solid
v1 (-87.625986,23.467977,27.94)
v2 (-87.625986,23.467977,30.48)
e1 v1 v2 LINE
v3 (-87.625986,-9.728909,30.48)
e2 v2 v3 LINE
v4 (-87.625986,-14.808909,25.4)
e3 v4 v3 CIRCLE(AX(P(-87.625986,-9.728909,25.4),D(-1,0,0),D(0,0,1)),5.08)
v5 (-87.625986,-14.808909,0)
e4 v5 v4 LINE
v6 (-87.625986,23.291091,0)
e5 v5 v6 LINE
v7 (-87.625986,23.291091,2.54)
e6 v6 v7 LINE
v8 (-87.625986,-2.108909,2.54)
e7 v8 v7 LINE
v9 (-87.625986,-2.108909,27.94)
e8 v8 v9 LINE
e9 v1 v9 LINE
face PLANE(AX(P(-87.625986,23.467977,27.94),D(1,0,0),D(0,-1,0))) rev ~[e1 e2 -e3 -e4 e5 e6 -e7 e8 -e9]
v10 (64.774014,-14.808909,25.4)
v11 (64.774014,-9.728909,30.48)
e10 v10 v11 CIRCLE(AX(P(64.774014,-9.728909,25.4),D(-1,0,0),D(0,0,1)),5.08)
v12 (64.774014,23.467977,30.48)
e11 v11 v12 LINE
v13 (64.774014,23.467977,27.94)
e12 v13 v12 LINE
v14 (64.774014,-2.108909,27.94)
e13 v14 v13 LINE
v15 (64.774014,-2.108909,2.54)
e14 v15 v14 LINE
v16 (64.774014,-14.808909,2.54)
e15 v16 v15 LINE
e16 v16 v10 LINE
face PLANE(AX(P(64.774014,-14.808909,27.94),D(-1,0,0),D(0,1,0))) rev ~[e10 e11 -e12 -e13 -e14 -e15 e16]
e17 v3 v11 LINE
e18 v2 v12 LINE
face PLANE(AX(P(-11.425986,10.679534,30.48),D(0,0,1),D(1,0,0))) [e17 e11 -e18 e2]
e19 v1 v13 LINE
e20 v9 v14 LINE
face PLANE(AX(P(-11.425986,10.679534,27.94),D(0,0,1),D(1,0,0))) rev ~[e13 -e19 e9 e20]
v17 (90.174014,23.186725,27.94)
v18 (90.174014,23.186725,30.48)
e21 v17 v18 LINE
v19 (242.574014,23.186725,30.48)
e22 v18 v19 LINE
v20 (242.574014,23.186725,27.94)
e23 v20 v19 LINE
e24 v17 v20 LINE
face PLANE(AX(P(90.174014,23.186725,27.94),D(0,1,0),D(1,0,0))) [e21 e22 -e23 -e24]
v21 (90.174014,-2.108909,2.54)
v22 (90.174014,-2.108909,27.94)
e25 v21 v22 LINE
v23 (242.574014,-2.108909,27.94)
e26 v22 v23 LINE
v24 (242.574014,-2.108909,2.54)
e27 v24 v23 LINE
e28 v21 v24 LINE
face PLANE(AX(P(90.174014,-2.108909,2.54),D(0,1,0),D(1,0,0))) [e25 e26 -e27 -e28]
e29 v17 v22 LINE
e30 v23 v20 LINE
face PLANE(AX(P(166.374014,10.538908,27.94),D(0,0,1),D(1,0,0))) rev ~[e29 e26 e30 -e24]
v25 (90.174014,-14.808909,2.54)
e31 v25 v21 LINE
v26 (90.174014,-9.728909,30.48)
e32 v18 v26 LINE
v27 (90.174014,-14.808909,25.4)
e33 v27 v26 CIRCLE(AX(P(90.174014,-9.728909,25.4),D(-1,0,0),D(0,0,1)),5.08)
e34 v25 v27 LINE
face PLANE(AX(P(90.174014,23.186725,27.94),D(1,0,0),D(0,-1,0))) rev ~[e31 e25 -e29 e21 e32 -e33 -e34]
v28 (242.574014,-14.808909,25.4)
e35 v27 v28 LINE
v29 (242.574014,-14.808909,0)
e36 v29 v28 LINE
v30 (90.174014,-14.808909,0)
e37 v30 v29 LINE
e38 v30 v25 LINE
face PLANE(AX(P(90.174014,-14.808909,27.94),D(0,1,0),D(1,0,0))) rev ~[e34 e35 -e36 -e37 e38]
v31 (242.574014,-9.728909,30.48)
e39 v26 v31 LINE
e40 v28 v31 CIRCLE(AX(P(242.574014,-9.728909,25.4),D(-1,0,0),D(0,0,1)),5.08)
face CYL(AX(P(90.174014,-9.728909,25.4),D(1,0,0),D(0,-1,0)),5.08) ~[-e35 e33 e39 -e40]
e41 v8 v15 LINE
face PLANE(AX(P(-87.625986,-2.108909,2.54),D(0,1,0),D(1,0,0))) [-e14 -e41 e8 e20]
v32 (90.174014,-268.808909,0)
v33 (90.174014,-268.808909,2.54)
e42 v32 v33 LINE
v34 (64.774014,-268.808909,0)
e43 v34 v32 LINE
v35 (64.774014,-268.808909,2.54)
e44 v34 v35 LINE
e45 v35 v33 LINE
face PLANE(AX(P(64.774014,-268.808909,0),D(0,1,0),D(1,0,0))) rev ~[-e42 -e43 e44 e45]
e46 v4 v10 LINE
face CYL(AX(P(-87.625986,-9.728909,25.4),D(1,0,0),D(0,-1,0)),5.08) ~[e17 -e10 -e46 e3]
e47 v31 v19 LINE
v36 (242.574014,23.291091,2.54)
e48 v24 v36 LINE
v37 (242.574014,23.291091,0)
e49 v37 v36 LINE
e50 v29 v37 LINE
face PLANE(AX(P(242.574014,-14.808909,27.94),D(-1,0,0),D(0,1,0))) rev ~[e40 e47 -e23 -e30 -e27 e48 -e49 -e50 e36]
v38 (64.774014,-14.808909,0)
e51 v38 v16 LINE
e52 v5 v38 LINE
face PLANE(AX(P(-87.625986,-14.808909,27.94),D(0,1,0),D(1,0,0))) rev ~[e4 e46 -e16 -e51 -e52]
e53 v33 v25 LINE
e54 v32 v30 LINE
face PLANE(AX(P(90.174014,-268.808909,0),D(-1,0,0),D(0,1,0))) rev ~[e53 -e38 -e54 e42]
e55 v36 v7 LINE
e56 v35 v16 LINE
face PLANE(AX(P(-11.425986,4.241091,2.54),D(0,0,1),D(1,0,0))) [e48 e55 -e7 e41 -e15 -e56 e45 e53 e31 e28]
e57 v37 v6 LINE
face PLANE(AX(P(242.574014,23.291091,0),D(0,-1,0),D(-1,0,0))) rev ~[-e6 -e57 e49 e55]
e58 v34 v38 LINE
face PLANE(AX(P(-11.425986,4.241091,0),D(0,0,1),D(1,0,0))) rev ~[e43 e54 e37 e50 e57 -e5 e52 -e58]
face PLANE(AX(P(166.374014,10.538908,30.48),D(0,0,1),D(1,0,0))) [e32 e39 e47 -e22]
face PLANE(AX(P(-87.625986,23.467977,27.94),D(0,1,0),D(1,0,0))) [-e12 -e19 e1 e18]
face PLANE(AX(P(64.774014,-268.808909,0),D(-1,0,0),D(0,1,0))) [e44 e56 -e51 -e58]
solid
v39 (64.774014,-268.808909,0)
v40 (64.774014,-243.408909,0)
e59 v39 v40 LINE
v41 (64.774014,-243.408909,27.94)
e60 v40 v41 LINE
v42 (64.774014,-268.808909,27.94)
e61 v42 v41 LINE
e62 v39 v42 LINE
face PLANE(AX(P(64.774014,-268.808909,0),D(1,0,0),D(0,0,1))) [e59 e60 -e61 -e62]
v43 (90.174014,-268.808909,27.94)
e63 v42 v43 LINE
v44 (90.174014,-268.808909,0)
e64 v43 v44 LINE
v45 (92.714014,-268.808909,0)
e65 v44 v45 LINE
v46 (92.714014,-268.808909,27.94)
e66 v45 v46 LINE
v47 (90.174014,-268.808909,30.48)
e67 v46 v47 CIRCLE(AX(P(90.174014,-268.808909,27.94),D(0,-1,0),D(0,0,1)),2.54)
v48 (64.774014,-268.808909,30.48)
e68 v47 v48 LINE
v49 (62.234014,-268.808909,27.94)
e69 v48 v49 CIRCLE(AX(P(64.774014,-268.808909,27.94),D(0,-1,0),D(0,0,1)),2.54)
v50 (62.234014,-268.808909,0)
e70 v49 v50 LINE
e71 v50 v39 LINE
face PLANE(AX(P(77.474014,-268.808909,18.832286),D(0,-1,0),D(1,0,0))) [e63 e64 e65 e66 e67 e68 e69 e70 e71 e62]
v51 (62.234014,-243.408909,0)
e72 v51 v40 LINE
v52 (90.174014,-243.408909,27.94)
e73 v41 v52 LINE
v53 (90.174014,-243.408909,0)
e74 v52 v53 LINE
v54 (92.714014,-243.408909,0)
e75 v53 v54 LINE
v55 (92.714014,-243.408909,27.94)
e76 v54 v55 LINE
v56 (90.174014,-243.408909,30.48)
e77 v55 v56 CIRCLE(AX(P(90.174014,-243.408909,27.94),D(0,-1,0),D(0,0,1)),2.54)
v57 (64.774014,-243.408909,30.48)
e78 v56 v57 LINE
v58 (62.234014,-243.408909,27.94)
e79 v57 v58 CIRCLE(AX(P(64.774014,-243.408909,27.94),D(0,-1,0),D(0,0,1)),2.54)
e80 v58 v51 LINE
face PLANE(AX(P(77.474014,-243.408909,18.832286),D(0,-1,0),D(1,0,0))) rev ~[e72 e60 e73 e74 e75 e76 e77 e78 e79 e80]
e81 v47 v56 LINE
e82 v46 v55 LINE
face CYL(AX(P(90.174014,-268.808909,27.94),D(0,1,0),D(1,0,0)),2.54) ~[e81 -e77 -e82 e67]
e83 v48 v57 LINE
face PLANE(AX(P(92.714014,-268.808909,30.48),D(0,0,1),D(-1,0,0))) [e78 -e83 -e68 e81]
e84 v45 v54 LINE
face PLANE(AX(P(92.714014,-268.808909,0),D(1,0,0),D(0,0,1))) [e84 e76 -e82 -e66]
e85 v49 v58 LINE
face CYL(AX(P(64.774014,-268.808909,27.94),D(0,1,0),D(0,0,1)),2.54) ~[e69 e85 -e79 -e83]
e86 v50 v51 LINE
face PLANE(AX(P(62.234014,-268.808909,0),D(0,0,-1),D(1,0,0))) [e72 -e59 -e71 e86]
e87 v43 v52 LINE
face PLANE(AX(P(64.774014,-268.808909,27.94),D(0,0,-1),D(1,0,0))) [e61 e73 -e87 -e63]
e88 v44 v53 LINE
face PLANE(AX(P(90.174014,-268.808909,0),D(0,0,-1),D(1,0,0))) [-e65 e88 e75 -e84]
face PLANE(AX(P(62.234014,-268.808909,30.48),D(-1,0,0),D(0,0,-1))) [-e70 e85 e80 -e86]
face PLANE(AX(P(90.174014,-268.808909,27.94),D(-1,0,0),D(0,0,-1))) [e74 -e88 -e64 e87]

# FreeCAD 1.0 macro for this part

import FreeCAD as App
import Part
import Sketcher

V = App.Vector
Q = App.Units.Quantity


def edges_at(feature, points):
    """Names of the edges that pass closest to the given points."""
    edges = feature.Shape.Edges
    near = lambda p: min(range(len(edges)), key=lambda i: edges[i].distToShape(Part.Vertex(*p))[0])
    return sorted({f"Edge{near(p) + 1}" for p in points})

doc = App.newDocument("Part")
body = doc.addObject("PartDesign::Body", "Body")

sketch1 = body.newObject("Sketcher::SketchObject", "Sketch")
sketch1.AttachmentSupport = (doc.getObject("XY_Plane"), [""])
sketch1.MapMode = "FlatFace"
sketch1.addGeometry([
    Part.LineSegment(V(-87.625986, 23.291091, 0), V(-87.625986, -14.808909, 0)),
    Part.LineSegment(V(-87.625986, -14.808909, 0), V(64.774014, -14.808909, 0)),
    Part.LineSegment(V(64.774014, -14.808909, 0), V(64.774014, -268.808909, 0)),
    Part.LineSegment(V(64.774014, -268.808909, 0), V(90.174014, -268.808909, 0)),
    Part.LineSegment(V(90.174014, -268.808909, 0), V(90.174014, -14.808909, 0)),
    Part.LineSegment(V(90.174014, -14.808909, 0), V(242.574014, -14.808909, 0)),
    Part.LineSegment(V(242.574014, -14.808909, 0), V(242.574014, 23.291091, 0)),
    Part.LineSegment(V(242.574014, 23.291091, 0), V(-87.625986, 23.291091, 0)),
], False)
sketch1.addConstraint([
    Sketcher.Constraint("Coincident", 0, 2, 1, 1),
    Sketcher.Constraint("Coincident", 1, 2, 2, 1),
    Sketcher.Constraint("Coincident", 2, 2, 3, 1),
    Sketcher.Constraint("Coincident", 3, 2, 4, 1),
    Sketcher.Constraint("Coincident", 4, 2, 5, 1),
    Sketcher.Constraint("Coincident", 5, 2, 6, 1),
    Sketcher.Constraint("Coincident", 6, 2, 7, 1),
    Sketcher.Constraint("Coincident", 7, 2, 0, 1),
    Sketcher.Constraint("Vertical", 0),
    Sketcher.Constraint("Horizontal", 1),
    Sketcher.Constraint("Vertical", 2),
    Sketcher.Constraint("Horizontal", 3),
    Sketcher.Constraint("Vertical", 4),
    Sketcher.Constraint("Horizontal", 5),
    Sketcher.Constraint("Vertical", 6),
    Sketcher.Constraint("Horizontal", 7),
    Sketcher.Constraint("Horizontal", 1, 2, 4, 2),
    Sketcher.Constraint("Equal", 1, 5),
    Sketcher.Constraint("DistanceX", 1, 1, 1, 2, Q("6 in")),
    Sketcher.Constraint("DistanceX", 3, 1, 3, 2, Q("1 in")),
    Sketcher.Constraint("DistanceY", 2, 2, 2, 1, Q("10 in")),
    Sketcher.Constraint("DistanceY", 0, 2, 0, 1, Q("1.5 in")),
    Sketcher.Constraint("DistanceY", 0, 2, -1, 1, 14.808909),
    Sketcher.Constraint("DistanceX", 0, 2, -1, 1, 87.625986),
])
pad1 = body.newObject("PartDesign::Pad", "Pad")
pad1.Profile = sketch1
pad1.Length = Q("0.1 in")

sketch2 = body.newObject("Sketcher::SketchObject", "Sketch001")
sketch2.AttachmentSupport = (doc.getObject("XY_Plane"), [""])
sketch2.MapMode = "FlatFace"
sketch2.AttachmentOffset = App.Placement(V(0, 0, 0.1 * 25.4), App.Rotation())
sketch2.addGeometry([
    Part.LineSegment(V(-87.625986, -2.108909, 0), V(-87.625986, -14.808909, 0)),
    Part.LineSegment(V(-87.625986, -14.808909, 0), V(64.774014, -14.808909, 0)),
    Part.LineSegment(V(64.774014, -14.808909, 0), V(64.774014, -2.108909, 0)),
    Part.LineSegment(V(64.774014, -2.108909, 0), V(-87.625986, -2.108909, 0)),
    Part.LineSegment(V(90.174014, -2.108909, 0), V(90.174014, -14.808909, 0)),
    Part.LineSegment(V(90.174014, -14.808909, 0), V(242.574014, -14.808909, 0)),
    Part.LineSegment(V(242.574014, -14.808909, 0), V(242.574014, -2.108909, 0)),
    Part.LineSegment(V(242.574014, -2.108909, 0), V(90.174014, -2.108909, 0)),
], False)
sketch2.addConstraint([
    Sketcher.Constraint("Coincident", 0, 2, 1, 1),
    Sketcher.Constraint("Coincident", 1, 2, 2, 1),
    Sketcher.Constraint("Coincident", 2, 2, 3, 1),
    Sketcher.Constraint("Coincident", 3, 2, 0, 1),
    Sketcher.Constraint("Coincident", 4, 2, 5, 1),
    Sketcher.Constraint("Coincident", 5, 2, 6, 1),
    Sketcher.Constraint("Coincident", 6, 2, 7, 1),
    Sketcher.Constraint("Coincident", 7, 2, 4, 1),
    Sketcher.Constraint("Vertical", 0),
    Sketcher.Constraint("Horizontal", 1),
    Sketcher.Constraint("Vertical", 2),
    Sketcher.Constraint("Horizontal", 3),
    Sketcher.Constraint("Vertical", 4),
    Sketcher.Constraint("Horizontal", 5),
    Sketcher.Constraint("Vertical", 6),
    Sketcher.Constraint("Horizontal", 7),
    Sketcher.Constraint("Horizontal", 1, 2, 4, 2),
    Sketcher.Constraint("Horizontal", 3, 2, 6, 2),
    Sketcher.Constraint("Equal", 3, 5),
    Sketcher.Constraint("DistanceX", 1, 1, 1, 2, Q("6 in")),
    Sketcher.Constraint("DistanceY", 0, 2, 0, 1, Q("0.5 in")),
    Sketcher.Constraint("DistanceX", 1, 2, 4, 2, Q("1 in")),
    Sketcher.Constraint("DistanceY", 0, 2, -1, 1, 14.808909),
    Sketcher.Constraint("DistanceX", 0, 2, -1, 1, 87.625986),
])
pad2 = body.newObject("PartDesign::Pad", "Pad001")
pad2.Profile = sketch2
pad2.Length = Q("1 in")

sketch3 = body.newObject("Sketcher::SketchObject", "Sketch002")
sketch3.AttachmentSupport = (doc.getObject("XY_Plane"), [""])
sketch3.MapMode = "FlatFace"
sketch3.AttachmentOffset = App.Placement(V(0, 0, 1.1 * 25.4), App.Rotation())
sketch3.addGeometry([
    Part.LineSegment(V(-87.625986, 23.467977, 0), V(-87.625986, -14.808909, 0)),
    Part.LineSegment(V(-87.625986, -14.808909, 0), V(64.774014, -14.808909, 0)),
    Part.LineSegment(V(64.774014, -14.808909, 0), V(64.774014, 23.467977, 0)),
    Part.LineSegment(V(64.774014, 23.467977, 0), V(-87.625986, 23.467977, 0)),
], False)
sketch3.addConstraint([
    Sketcher.Constraint("Coincident", 0, 2, 1, 1),
    Sketcher.Constraint("Coincident", 1, 2, 2, 1),
    Sketcher.Constraint("Coincident", 2, 2, 3, 1),
    Sketcher.Constraint("Coincident", 3, 2, 0, 1),
    Sketcher.Constraint("Vertical", 0),
    Sketcher.Constraint("Horizontal", 1),
    Sketcher.Constraint("Vertical", 2),
    Sketcher.Constraint("Horizontal", 3),
    Sketcher.Constraint("DistanceX", 1, 1, 1, 2, Q("6 in")),
    Sketcher.Constraint("DistanceY", 0, 2, 0, 1, 38.276886),
    Sketcher.Constraint("DistanceY", 0, 2, -1, 1, 14.808909),
    Sketcher.Constraint("DistanceX", 0, 2, -1, 1, 87.625986),
])
pad3 = body.newObject("PartDesign::Pad", "Pad002")
pad3.Profile = sketch3
pad3.Length = Q("0.1 in")

sketch4 = body.newObject("Sketcher::SketchObject", "Sketch003")
sketch4.AttachmentSupport = (doc.getObject("XY_Plane"), [""])
sketch4.MapMode = "FlatFace"
sketch4.AttachmentOffset = App.Placement(V(0, 0, 1.1 * 25.4), App.Rotation())
sketch4.addGeometry([
    Part.LineSegment(V(90.174014, 23.186725, 0), V(90.174014, -14.808909, 0)),
    Part.LineSegment(V(90.174014, -14.808909, 0), V(242.574014, -14.808909, 0)),
    Part.LineSegment(V(242.574014, -14.808909, 0), V(242.574014, 23.186725, 0)),
    Part.LineSegment(V(242.574014, 23.186725, 0), V(90.174014, 23.186725, 0)),
], False)
sketch4.addConstraint([
    Sketcher.Constraint("Coincident", 0, 2, 1, 1),
    Sketcher.Constraint("Coincident", 1, 2, 2, 1),
    Sketcher.Constraint("Coincident", 2, 2, 3, 1),
    Sketcher.Constraint("Coincident", 3, 2, 0, 1),
    Sketcher.Constraint("Vertical", 0),
    Sketcher.Constraint("Horizontal", 1),
    Sketcher.Constraint("Vertical", 2),
    Sketcher.Constraint("Horizontal", 3),
    Sketcher.Constraint("DistanceX", 1, 1, 1, 2, Q("6 in")),
    Sketcher.Constraint("DistanceY", 0, 2, 0, 1, 37.995634),
    Sketcher.Constraint("DistanceY", 0, 2, -1, 1, 14.808909),
    Sketcher.Constraint("DistanceX", -1, 1, 0, 2, 90.174014),
])
pad4 = body.newObject("PartDesign::Pad", "Pad003")
pad4.Profile = sketch4
pad4.Length = Q("0.1 in")
doc.recompute()

fillet = body.newObject("PartDesign::Fillet", "Fillet")
fillet.Base = (pad4, edges_at(pad4, [(166.374, -14.809, 30.48)]))
fillet.Radius = Q("0.2 in")
doc.recompute()

fillet2 = body.newObject("PartDesign::Fillet", "Fillet001")
fillet2.Base = (fillet, edges_at(fillet, [(-11.426, -14.809, 30.48)]))
fillet2.Radius = Q("0.2 in")
body2 = doc.addObject("PartDesign::Body", "Body001")

sketch5 = body2.newObject("Sketcher::SketchObject", "Sketch004")
sketch5.AttachmentSupport = (doc.getObject("XZ_Plane001"), [""])
sketch5.MapMode = "FlatFace"
sketch5.AttachmentOffset = App.Placement(V(0, 0, 268.808909), App.Rotation())
sketch5.addGeometry([
    Part.LineSegment(V(62.234014, 0, 0), V(64.774014, 0, 0)),
    Part.LineSegment(V(64.774014, 0, 0), V(64.774014, 27.94, 0)),
    Part.LineSegment(V(64.774014, 27.94, 0), V(90.174014, 27.94, 0)),
    Part.LineSegment(V(90.174014, 27.94, 0), V(90.174014, 0, 0)),
    Part.LineSegment(V(90.174014, 0, 0), V(92.714014, 0, 0)),
    Part.LineSegment(V(92.714014, 0, 0), V(92.714014, 30.48, 0)),
    Part.LineSegment(V(92.714014, 30.48, 0), V(62.234014, 30.48, 0)),
    Part.LineSegment(V(62.234014, 30.48, 0), V(62.234014, 0, 0)),
], False)
sketch5.addConstraint([
    Sketcher.Constraint("Coincident", 0, 2, 1, 1),
    Sketcher.Constraint("Coincident", 1, 2, 2, 1),
    Sketcher.Constraint("Coincident", 2, 2, 3, 1),
    Sketcher.Constraint("Coincident", 3, 2, 4, 1),
    Sketcher.Constraint("Coincident", 4, 2, 5, 1),
    Sketcher.Constraint("Coincident", 5, 2, 6, 1),
    Sketcher.Constraint("Coincident", 6, 2, 7, 1),
    Sketcher.Constraint("Coincident", 7, 2, 0, 1),
    Sketcher.Constraint("Horizontal", 0),
    Sketcher.Constraint("Vertical", 1),
    Sketcher.Constraint("Horizontal", 2),
    Sketcher.Constraint("Vertical", 3),
    Sketcher.Constraint("Horizontal", 4),
    Sketcher.Constraint("Vertical", 5),
    Sketcher.Constraint("Horizontal", 6),
    Sketcher.Constraint("Vertical", 7),
    Sketcher.Constraint("PointOnObject", 0, 2, -1),
    Sketcher.Constraint("PointOnObject", 3, 2, -1),
    Sketcher.Constraint("Equal", 0, 4),
    Sketcher.Constraint("Equal", 6, 5),
    Sketcher.Constraint("DistanceX", 2, 1, 2, 2, Q("1 in")),
    Sketcher.Constraint("DistanceX", 0, 1, 0, 2, Q("0.1 in")),
    Sketcher.Constraint("DistanceY", 1, 1, 1, 2, Q("1.1 in")),
    Sketcher.Constraint("DistanceX", -1, 1, 0, 2, 64.774014),
])
pad5 = body2.newObject("PartDesign::Pad", "Pad004")
pad5.Profile = sketch5
pad5.Length = Q("1 in")
pad5.Reversed = True
doc.recompute()

fillet3 = body2.newObject("PartDesign::Fillet", "Fillet002")
fillet3.Base = (pad5, edges_at(pad5, [(92.714, -256.109, 30.48)]))
fillet3.Radius = Q("0.1 in")
doc.recompute()

fillet4 = body2.newObject("PartDesign::Fillet", "Fillet003")
fillet4.Base = (fillet3, edges_at(fillet3, [(62.234, -256.109, 30.48)]))
fillet4.Radius = Q("0.1 in")

doc.recompute()
